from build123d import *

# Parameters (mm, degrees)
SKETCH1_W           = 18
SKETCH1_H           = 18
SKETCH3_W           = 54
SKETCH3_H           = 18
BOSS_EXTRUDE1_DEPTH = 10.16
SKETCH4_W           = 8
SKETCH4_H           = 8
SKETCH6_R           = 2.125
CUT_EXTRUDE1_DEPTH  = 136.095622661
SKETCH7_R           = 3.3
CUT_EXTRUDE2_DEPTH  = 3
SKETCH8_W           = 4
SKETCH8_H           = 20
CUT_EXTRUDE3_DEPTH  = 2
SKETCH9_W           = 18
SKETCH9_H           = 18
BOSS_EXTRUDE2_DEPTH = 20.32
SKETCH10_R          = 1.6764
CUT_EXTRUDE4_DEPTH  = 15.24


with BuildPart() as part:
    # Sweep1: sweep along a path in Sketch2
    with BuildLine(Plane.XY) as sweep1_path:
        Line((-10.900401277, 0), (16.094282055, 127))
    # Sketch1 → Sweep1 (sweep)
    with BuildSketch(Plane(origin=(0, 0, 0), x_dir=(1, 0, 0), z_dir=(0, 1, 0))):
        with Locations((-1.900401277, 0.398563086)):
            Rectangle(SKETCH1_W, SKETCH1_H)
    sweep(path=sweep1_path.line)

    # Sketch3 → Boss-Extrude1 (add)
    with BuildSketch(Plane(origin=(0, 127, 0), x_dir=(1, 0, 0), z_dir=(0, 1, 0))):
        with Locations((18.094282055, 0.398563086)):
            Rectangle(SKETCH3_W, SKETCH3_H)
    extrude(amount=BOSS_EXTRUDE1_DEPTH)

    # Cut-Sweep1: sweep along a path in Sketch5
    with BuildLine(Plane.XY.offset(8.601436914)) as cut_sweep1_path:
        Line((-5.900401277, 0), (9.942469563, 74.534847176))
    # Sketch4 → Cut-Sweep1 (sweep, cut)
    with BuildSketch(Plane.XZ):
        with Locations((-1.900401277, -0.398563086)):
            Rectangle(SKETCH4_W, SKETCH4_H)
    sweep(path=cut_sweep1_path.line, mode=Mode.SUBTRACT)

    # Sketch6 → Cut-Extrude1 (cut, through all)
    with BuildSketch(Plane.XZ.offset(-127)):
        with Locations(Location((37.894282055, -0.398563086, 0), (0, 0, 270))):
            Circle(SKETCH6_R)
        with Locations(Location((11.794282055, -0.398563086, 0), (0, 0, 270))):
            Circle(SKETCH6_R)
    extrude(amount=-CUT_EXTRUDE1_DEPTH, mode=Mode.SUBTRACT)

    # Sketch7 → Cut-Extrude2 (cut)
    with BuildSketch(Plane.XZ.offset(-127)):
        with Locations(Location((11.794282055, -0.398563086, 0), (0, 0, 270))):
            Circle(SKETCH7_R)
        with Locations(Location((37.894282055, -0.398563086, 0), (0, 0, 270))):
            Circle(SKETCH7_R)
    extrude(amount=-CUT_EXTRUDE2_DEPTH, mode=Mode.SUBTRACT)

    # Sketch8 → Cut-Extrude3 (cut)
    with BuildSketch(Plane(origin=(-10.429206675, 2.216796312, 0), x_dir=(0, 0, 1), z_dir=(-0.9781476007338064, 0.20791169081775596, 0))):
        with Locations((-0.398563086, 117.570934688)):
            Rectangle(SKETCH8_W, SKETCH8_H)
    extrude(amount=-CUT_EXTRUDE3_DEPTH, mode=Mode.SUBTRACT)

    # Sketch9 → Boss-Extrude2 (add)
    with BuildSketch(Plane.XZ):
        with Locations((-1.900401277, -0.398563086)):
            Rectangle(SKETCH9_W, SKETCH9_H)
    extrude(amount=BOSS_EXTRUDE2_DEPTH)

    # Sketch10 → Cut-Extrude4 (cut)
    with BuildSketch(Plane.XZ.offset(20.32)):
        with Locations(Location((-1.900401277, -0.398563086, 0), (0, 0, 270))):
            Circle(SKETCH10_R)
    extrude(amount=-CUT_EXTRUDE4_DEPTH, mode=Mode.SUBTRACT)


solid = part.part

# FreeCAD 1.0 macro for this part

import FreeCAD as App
import Part
import Sketcher
from FreeCAD import Vector


def add_polygon(sketch, points):
    """Adds a closed chain of lines whose ends are joined by coincident constraints."""
    first, n = sketch.GeometryCount, len(points)
    for a, b in zip(points, points[1:] + points[:1]):
        sketch.addGeometry(Part.LineSegment(App.Vector(*a, 0), App.Vector(*b, 0)), False)
    for i in range(n):
        sketch.addConstraint(Sketcher.Constraint("Coincident", first + i, 2, first + (i + 1) % n, 1))

doc = App.newDocument("Part")
body = doc.addObject("PartDesign::Body", "Body")

sketch1 = body.newObject("Sketcher::SketchObject", "Sketch")
sketch1.AttachmentSupport = (doc.getObject("XZ_Plane"), [""])
sketch1.MapMode = "FlatFace"
add_polygon(sketch1, [(-11, -9), (-11, 9), (7, 9), (7, -9)])
sketch1.addConstraint(Sketcher.Constraint("Vertical", 0))
sketch1.addConstraint(Sketcher.Constraint("Horizontal", 1))
sketch1.addConstraint(Sketcher.Constraint("Vertical", 2))
sketch1.addConstraint(Sketcher.Constraint("Horizontal", 3))
sketch1.addConstraint(Sketcher.Constraint("Equal", 3, 0))
sketch1.addConstraint(Sketcher.Constraint("DistanceX", 1, 1, 1, 2, 18.0))
sketch1.addConstraint(Sketcher.Constraint("DistanceX", 0, 2, -1, 1, 10.900401))
sketch1.addConstraint(Sketcher.Constraint("DistanceY", -1, 1, 0, 2, 8.601437))

sketch2 = body.newObject("Sketcher::SketchObject", "Sketch001")
sketch2.Placement = App.Placement(Vector(-10.429207, 2.216796, 0), App.Rotation(Vector(0.207911691, 0.978147601, 0), Vector(0, 0, 1.000000001), Vector(0.978147601, -0.207911691, 0), "ZXY"))
sketch2.addGeometry(Part.LineSegment(Vector(-2, 0, 0), Vector(128, 0, 0)), False)
sketch2.addConstraint(Sketcher.Constraint("Horizontal", 0))
sketch2.addConstraint(Sketcher.Constraint("PointOnObject", 0, 1, -1))
sketch2.addConstraint(Sketcher.Constraint("DistanceX", 0, 1, 0, 2, 129.837256))
sketch2.addConstraint(Sketcher.Constraint("DistanceX", 0, 1, -1, 1, 2.266321))
doc.recompute()

additivepipe = body.newObject("PartDesign::AdditivePipe", "AdditivePipe")
additivepipe.Profile = sketch1
additivepipe.Spine = (sketch2, ["Edge1"])

sketch3 = body.newObject("Sketcher::SketchObject", "Sketch002")
sketch3.AttachmentSupport = (doc.getObject("XZ_Plane"), [""])
sketch3.MapMode = "FlatFace"
sketch3.AttachmentOffset = App.Placement(Vector(0, 0, -127), App.Rotation())
add_polygon(sketch3, [(-9, -9), (-9, 9), (45, 9), (45, -9)])
sketch3.addConstraint(Sketcher.Constraint("Vertical", 0))
sketch3.addConstraint(Sketcher.Constraint("Horizontal", 1))
sketch3.addConstraint(Sketcher.Constraint("Vertical", 2))
sketch3.addConstraint(Sketcher.Constraint("Horizontal", 3))
sketch3.addConstraint(Sketcher.Constraint("DistanceX", 1, 1, 1, 2, 54.0))
sketch3.addConstraint(Sketcher.Constraint("DistanceY", 0, 1, 0, 2, 18.0))
sketch3.addConstraint(Sketcher.Constraint("DistanceX", 0, 2, -1, 1, 8.905718))
sketch3.addConstraint(Sketcher.Constraint("DistanceY", -1, 1, 0, 2, 8.601437))
pad1 = body.newObject("PartDesign::Pad", "Pad")
pad1.Profile = sketch3
pad1.Length = 10.16
pad1.Reversed = True

sketch4 = body.newObject("Sketcher::SketchObject", "Sketch003")
sketch4.AttachmentSupport = (doc.getObject("XZ_Plane"), [""])
sketch4.MapMode = "FlatFace"
add_polygon(sketch4, [(-6, 4), (-6, -4), (2, -4), (2, 4)])
sketch4.addConstraint(Sketcher.Constraint("Vertical", 0))
sketch4.addConstraint(Sketcher.Constraint("Horizontal", 1))
sketch4.addConstraint(Sketcher.Constraint("Vertical", 2))
sketch4.addConstraint(Sketcher.Constraint("Horizontal", 3))
sketch4.addConstraint(Sketcher.Constraint("Equal", 3, 0))
sketch4.addConstraint(Sketcher.Constraint("DistanceX", 1, 1, 1, 2, 8.0))
sketch4.addConstraint(Sketcher.Constraint("DistanceX", 0, 2, -1, 1, 5.900401))
sketch4.addConstraint(Sketcher.Constraint("DistanceY", 0, 2, -1, 1, 4.398563))

sketch5 = body.newObject("Sketcher::SketchObject", "Sketch004")
sketch5.Placement = App.Placement(Vector(-5.645343, 1.199955, 0), App.Rotation(Vector(0.207911691, 0.978147601, 0), Vector(0, 0, 1.000000001), Vector(0.978147601, -0.207911691, 0), "ZXY"))
sketch5.addGeometry(Part.LineSegment(Vector(-1, 9, 0), Vector(75, 9, 0)), False)
sketch5.addConstraint(Sketcher.Constraint("Horizontal", 0))
sketch5.addConstraint(Sketcher.Constraint("DistanceX", 0, 1, 0, 2, 76.2))
sketch5.addConstraint(Sketcher.Constraint("DistanceX", 0, 1, -1, 1, 1.226762))
sketch5.addConstraint(Sketcher.Constraint("DistanceY", -1, 1, 0, 1, 8.601437))
doc.recompute()

subtractivepipe = body.newObject("PartDesign::SubtractivePipe", "SubtractivePipe")
subtractivepipe.Profile = sketch4
subtractivepipe.Spine = (sketch5, ["Edge1"])

sketch6 = body.newObject("Sketcher::SketchObject", "Sketch005")
sketch6.AttachmentSupport = (doc.getObject("XZ_Plane"), [""])
sketch6.MapMode = "FlatFace"
sketch6.AttachmentOffset = App.Placement(Vector(0, 0, -127), App.Rotation())
sketch6.addGeometry(Part.Circle(Vector(37.9, -0.4, 0), Vector(0, 0, 1), 2.1), False)
sketch6.addGeometry(Part.Circle(Vector(11.8, -0.4, 0), Vector(0, 0, 1), 2.1), False)
sketch6.addConstraint(Sketcher.Constraint("Equal", 0, 1))
sketch6.addConstraint(Sketcher.Constraint("Horizontal", 0, 3, 1, 3))
sketch6.addConstraint(Sketcher.Constraint("Diameter", 0, 4.25))
sketch6.addConstraint(Sketcher.Constraint("DistanceX", 1, 3, 0, 3, 26.1))
sketch6.addConstraint(Sketcher.Constraint("DistanceX", -1, 1, 0, 3, 37.894282))
sketch6.addConstraint(Sketcher.Constraint("DistanceY", 0, 3, -1, 1, 0.398563))
pocket1 = body.newObject("PartDesign::Pocket", "Pocket")
pocket1.Profile = sketch6
pocket1.Type = "ThroughAll"

sketch7 = body.newObject("Sketcher::SketchObject", "Sketch006")
sketch7.AttachmentSupport = (doc.getObject("XZ_Plane"), [""])
sketch7.MapMode = "FlatFace"
sketch7.AttachmentOffset = App.Placement(Vector(0, 0, -127), App.Rotation())
sketch7.addGeometry(Part.Circle(Vector(11.8, -0.4, 0), Vector(0, 0, 1), 3.3), False)
sketch7.addGeometry(Part.Circle(Vector(37.9, -0.4, 0), Vector(0, 0, 1), 3.3), False)
sketch7.addConstraint(Sketcher.Constraint("Equal", 0, 1))
sketch7.addConstraint(Sketcher.Constraint("Horizontal", 0, 3, 1, 3))
sketch7.addConstraint(Sketcher.Constraint("Diameter", 0, 6.6))
sketch7.addConstraint(Sketcher.Constraint("DistanceX", 0, 3, 1, 3, 26.1))
sketch7.addConstraint(Sketcher.Constraint("DistanceX", -1, 1, 0, 3, 11.794282))
sketch7.addConstraint(Sketcher.Constraint("DistanceY", 0, 3, -1, 1, 0.398563))
pocket2 = body.newObject("PartDesign::Pocket", "Pocket001")
pocket2.Profile = sketch7
pocket2.Length = 3

sketch8 = body.newObject("Sketcher::SketchObject", "Sketch007")
sketch8.Placement = App.Placement(Vector(-10.429207, 2.216796, 0), App.Rotation(Vector(0, 0, 1), Vector(0.207911691, 0.978147601, 0), Vector(-0.978147601, 0.207911691, 0), "ZXY"))
add_polygon(sketch8, [(-2.4, 127.6), (-2.4, 107.6), (1.6, 107.6), (1.6, 127.6)])
sketch8.addConstraint(Sketcher.Constraint("Vertical", 0))
sketch8.addConstraint(Sketcher.Constraint("Horizontal", 1))
sketch8.addConstraint(Sketcher.Constraint("Vertical", 2))
sketch8.addConstraint(Sketcher.Constraint("Horizontal", 3))
sketch8.addConstraint(Sketcher.Constraint("DistanceX", 1, 1, 1, 2, 4.0))
sketch8.addConstraint(Sketcher.Constraint("DistanceY", 0, 2, 0, 1, 20.0))
sketch8.addConstraint(Sketcher.Constraint("DistanceX", 0, 2, -1, 1, 2.398563))
sketch8.addConstraint(Sketcher.Constraint("DistanceY", -1, 1, 0, 2, 107.570935))
pocket3 = body.newObject("PartDesign::Pocket", "Pocket002")
pocket3.Profile = sketch8
pocket3.Length = 2

sketch9 = body.newObject("Sketcher::SketchObject", "Sketch008")
sketch9.AttachmentSupport = (doc.getObject("XZ_Plane"), [""])
sketch9.MapMode = "FlatFace"
add_polygon(sketch9, [(-11, 9), (-11, -9), (7, -9), (7, 9)])
sketch9.addConstraint(Sketcher.Constraint("Vertical", 0))
sketch9.addConstraint(Sketcher.Constraint("Horizontal", 1))
sketch9.addConstraint(Sketcher.Constraint("Vertical", 2))
sketch9.addConstraint(Sketcher.Constraint("Horizontal", 3))
sketch9.addConstraint(Sketcher.Constraint("Equal", 3, 0))
sketch9.addConstraint(Sketcher.Constraint("DistanceX", 1, 1, 1, 2, 18.0))
sketch9.addConstraint(Sketcher.Constraint("DistanceX", 0, 2, -1, 1, 10.900401))
sketch9.addConstraint(Sketcher.Constraint("DistanceY", 0, 2, -1, 1, 9.398563))
pad2 = body.newObject("PartDesign::Pad", "Pad001")
pad2.Profile = sketch9
pad2.Length = 20.32

sketch10 = body.newObject("Sketcher::SketchObject", "Sketch009")
sketch10.AttachmentSupport = (doc.getObject("XZ_Plane"), [""])
sketch10.MapMode = "FlatFace"
sketch10.AttachmentOffset = App.Placement(Vector(0, 0, 20.32), App.Rotation())
sketch10.addGeometry(Part.Circle(Vector(-1.9, -0.4, 0), Vector(0, 0, 1), 1.7), False)
sketch10.addConstraint(Sketcher.Constraint("Diameter", 0, 3.3528))
sketch10.addConstraint(Sketcher.Constraint("DistanceX", 0, 3, -1, 1, 1.900401))
sketch10.addConstraint(Sketcher.Constraint("DistanceY", 0, 3, -1, 1, 0.398563))
pocket4 = body.newObject("PartDesign::Pocket", "Pocket003")
pocket4.Profile = sketch10
pocket4.Length = 15.24

doc.recompute()
